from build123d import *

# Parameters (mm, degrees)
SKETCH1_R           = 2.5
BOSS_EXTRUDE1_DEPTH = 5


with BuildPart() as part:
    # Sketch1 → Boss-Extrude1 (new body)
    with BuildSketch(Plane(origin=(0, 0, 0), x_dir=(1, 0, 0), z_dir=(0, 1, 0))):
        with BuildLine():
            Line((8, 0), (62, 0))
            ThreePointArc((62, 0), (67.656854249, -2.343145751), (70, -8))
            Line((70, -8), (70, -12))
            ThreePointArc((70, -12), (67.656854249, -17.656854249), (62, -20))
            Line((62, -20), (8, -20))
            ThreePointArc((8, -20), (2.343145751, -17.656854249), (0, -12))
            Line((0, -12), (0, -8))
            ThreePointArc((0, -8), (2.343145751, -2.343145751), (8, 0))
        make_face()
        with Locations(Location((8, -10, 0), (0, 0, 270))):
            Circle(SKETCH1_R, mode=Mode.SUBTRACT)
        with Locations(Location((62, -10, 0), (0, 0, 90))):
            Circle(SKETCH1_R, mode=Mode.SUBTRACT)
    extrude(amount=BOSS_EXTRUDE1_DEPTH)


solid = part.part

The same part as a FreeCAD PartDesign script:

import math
import FreeCAD as App
import Part
import Sketcher

doc = App.newDocument("Part")
body = doc.addObject("PartDesign::Body", "Body")

# Sketch on XZ plane
sketch1 = doc.addObject("Sketcher::SketchObject", "Sketch")
body.addObject(sketch1)
sketch1.AttachmentSupport = (doc.XZ_Plane, [""])
sketch1.MapMode = "FlatFace"
sketch1.addGeometry(Part.LineSegment(App.Vector(62, 0, 0), App.Vector(8, 0, 0)), False)
sketch1.addGeometry(Part.ArcOfCircle(Part.Circle(App.Vector(8, 8, 0), App.Vector(0, 0, 1), 8), math.radians(-180), math.radians(-90)), False)
sketch1.addGeometry(Part.LineSegment(App.Vector(0, 8, 0), App.Vector(0, 12, 0)), False)
sketch1.addGeometry(Part.ArcOfCircle(Part.Circle(App.Vector(8, 12, 0), App.Vector(0, 0, 1), 8), math.radians(90), math.radians(180)), False)
sketch1.addGeometry(Part.LineSegment(App.Vector(8, 20, 0), App.Vector(62, 20, 0)), False)
sketch1.addGeometry(Part.ArcOfCircle(Part.Circle(App.Vector(62, 12, 0), App.Vector(0, 0, 1), 8), math.radians(0), math.radians(90)), False)
sketch1.addGeometry(Part.LineSegment(App.Vector(70, 12, 0), App.Vector(70, 8, 0)), False)
sketch1.addGeometry(Part.ArcOfCircle(Part.Circle(App.Vector(62, 8, 0), App.Vector(0, 0, 1), 8), math.radians(-90), math.radians(0)), False)
sketch1.addGeometry(Part.Circle(App.Vector(62, 10, 0), App.Vector(0, 0, 1), 2.5), False)
sketch1.addGeometry(Part.Circle(App.Vector(8, 10, 0), App.Vector(0, 0, 1), 2.5), False)
sketch1.addConstraint(Sketcher.Constraint("Tangent", 0, 2, 1, 2))
sketch1.addConstraint(Sketcher.Constraint("Tangent", 1, 1, 2, 1))
sketch1.addConstraint(Sketcher.Constraint("Tangent", 2, 2, 3, 2))
sketch1.addConstraint(Sketcher.Constraint("Tangent", 3, 1, 4, 1))
sketch1.addConstraint(Sketcher.Constraint("Tangent", 4, 2, 5, 2))
sketch1.addConstraint(Sketcher.Constraint("Tangent", 5, 1, 6, 1))
sketch1.addConstraint(Sketcher.Constraint("Tangent", 6, 2, 7, 2))
sketch1.addConstraint(Sketcher.Constraint("Tangent", 7, 1, 0, 1))
sketch1.addConstraint(Sketcher.Constraint("Horizontal", 0))
sketch1.addConstraint(Sketcher.Constraint("Vertical", 2))
sketch1.addConstraint(Sketcher.Constraint("Horizontal", 4))
sketch1.addConstraint(Sketcher.Constraint("Vertical", 6))
sketch1.addConstraint(Sketcher.Constraint("Equal", 1, 3))
sketch1.addConstraint(Sketcher.Constraint("Equal", 3, 5))
sketch1.addConstraint(Sketcher.Constraint("Equal", 5, 7))
sketch1.addConstraint(Sketcher.Constraint("Equal", 8, 9))
sketch1.addConstraint(Sketcher.Constraint("PointOnObject", 0, 2, -1))
sketch1.addConstraint(Sketcher.Constraint("PointOnObject", 1, 1, -2))
sketch1.addConstraint(Sketcher.Constraint("Horizontal", 8, 3, 9, 3))
sketch1.addConstraint(Sketcher.Constraint("Vertical", 7, 3, 8, 3))
sketch1.addConstraint(Sketcher.Constraint("Vertical", 3, 3, 9, 3))
sketch1.addConstraint(Sketcher.Constraint("Diameter", 8, 5.0))
sketch1.addConstraint(Sketcher.Constraint("Radius", 1, 8.0))
sketch1.addConstraint(Sketcher.Constraint("DistanceX", 0, 2, 0, 1, 54.0))
sketch1.addConstraint(Sketcher.Constraint("DistanceY", 2, 1, 2, 2, 4.0))
sketch1.addConstraint(Sketcher.Constraint("DistanceY", -1, 1, 8, 3, 10.0))
pad1 = doc.addObject("PartDesign::Pad", "Pad")
body.addObject(pad1)
pad1.Profile = sketch1
pad1.Length = 5
pad1.Reversed = True

doc.recompute()
